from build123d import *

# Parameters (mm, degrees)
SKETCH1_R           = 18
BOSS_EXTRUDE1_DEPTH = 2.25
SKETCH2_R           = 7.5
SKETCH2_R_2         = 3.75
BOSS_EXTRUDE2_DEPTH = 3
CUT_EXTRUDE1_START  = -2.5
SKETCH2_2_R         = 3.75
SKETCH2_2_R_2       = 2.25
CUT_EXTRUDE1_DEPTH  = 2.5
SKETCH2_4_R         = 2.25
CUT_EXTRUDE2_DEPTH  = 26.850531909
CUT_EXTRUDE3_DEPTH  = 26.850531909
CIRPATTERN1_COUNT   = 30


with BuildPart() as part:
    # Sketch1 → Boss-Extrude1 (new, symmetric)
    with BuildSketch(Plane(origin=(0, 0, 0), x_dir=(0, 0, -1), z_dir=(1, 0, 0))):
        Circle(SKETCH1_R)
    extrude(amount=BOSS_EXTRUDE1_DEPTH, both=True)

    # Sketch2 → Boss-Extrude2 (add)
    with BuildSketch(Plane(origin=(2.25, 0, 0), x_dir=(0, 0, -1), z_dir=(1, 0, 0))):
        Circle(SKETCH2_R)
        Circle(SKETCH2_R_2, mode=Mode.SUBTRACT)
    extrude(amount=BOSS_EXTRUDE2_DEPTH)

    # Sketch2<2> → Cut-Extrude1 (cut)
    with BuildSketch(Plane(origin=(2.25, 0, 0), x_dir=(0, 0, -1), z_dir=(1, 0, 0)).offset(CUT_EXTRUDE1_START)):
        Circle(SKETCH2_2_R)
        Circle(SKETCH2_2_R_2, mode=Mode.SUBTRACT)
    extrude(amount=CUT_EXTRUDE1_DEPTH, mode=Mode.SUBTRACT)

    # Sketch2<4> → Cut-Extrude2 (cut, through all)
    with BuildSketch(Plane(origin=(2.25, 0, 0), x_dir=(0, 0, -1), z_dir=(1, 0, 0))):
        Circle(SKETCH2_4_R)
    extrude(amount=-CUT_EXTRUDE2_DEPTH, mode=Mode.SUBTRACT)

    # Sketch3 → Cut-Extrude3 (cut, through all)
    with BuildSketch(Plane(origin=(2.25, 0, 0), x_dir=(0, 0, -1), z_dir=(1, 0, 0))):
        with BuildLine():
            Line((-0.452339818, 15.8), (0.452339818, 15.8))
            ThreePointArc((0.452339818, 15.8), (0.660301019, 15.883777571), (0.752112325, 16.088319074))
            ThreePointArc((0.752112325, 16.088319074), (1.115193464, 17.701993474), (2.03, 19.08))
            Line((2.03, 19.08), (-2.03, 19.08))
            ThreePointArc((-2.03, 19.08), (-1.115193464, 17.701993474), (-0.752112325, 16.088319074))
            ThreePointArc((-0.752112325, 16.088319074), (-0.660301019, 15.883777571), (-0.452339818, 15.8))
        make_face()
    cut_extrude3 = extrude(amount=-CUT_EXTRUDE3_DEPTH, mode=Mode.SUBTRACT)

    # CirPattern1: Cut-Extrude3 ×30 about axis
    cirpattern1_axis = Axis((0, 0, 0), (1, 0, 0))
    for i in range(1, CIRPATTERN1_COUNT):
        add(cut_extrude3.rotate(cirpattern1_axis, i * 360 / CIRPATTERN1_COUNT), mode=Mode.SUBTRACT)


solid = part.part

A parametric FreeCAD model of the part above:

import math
import FreeCAD as App
import Part
import Sketcher
from FreeCAD import Vector

doc = App.newDocument("Part")
body = doc.addObject("PartDesign::Body", "Body")

sketch1 = body.newObject("Sketcher::SketchObject", "Sketch")
sketch1.AttachmentSupport = (doc.getObject("YZ_Plane"), [""])
sketch1.MapMode = "FlatFace"
sketch1.addGeometry(Part.Circle(Vector(0, 0, 0), Vector(0, 0, 1), 18), False)
sketch1.addConstraint([
    Sketcher.Constraint("Coincident", 0, 3, -1, 1),
    Sketcher.Constraint("Diameter", 0, 36.0),
])
pad1 = body.newObject("PartDesign::Pad", "Pad")
pad1.Profile = sketch1
pad1.Length = 4.5
pad1.Midplane = True

sketch2 = body.newObject("Sketcher::SketchObject", "Sketch001")
sketch2.AttachmentSupport = (doc.getObject("YZ_Plane"), [""])
sketch2.MapMode = "FlatFace"
sketch2.AttachmentOffset = App.Placement(Vector(0, 0, 2.25), App.Rotation())
sketch2.addGeometry([
    Part.Circle(Vector(0, 0, 0), Vector(0, 0, 1), 7.5),
    Part.Circle(Vector(0, 0, 0), Vector(0, 0, 1), 3.8),
], False)
sketch2.addConstraint([
    Sketcher.Constraint("Coincident", 0, 3, -1, 1),
    Sketcher.Constraint("Coincident", 1, 3, -1, 1),
    Sketcher.Constraint("Diameter", 0, 15.0),
    Sketcher.Constraint("Diameter", 1, 7.5),
])
pad2 = body.newObject("PartDesign::Pad", "Pad001")
pad2.Profile = sketch2
pad2.Length = 3

sketch3 = body.newObject("Sketcher::SketchObject", "Sketch002")
sketch3.AttachmentSupport = (doc.getObject("YZ_Plane"), [""])
sketch3.MapMode = "FlatFace"
sketch3.AttachmentOffset = App.Placement(Vector(0, 0, -0.25), App.Rotation())
sketch3.addGeometry([
    Part.Circle(Vector(0, 0, 0), Vector(0, 0, 1), 3.8),
    Part.Circle(Vector(0, 0, 0), Vector(0, 0, 1), 2.2),
], False)
sketch3.addConstraint([
    Sketcher.Constraint("Coincident", 0, 3, -1, 1),
    Sketcher.Constraint("Coincident", 1, 3, -1, 1),
    Sketcher.Constraint("Diameter", 0, 7.5),
    Sketcher.Constraint("Diameter", 1, 4.5),
])
pocket1 = body.newObject("PartDesign::Pocket", "Pocket")
pocket1.Profile = sketch3
pocket1.Length = 2.5
pocket1.Reversed = True

sketch4 = body.newObject("Sketcher::SketchObject", "Sketch003")
sketch4.AttachmentSupport = (doc.getObject("YZ_Plane"), [""])
sketch4.MapMode = "FlatFace"
sketch4.AttachmentOffset = App.Placement(Vector(0, 0, 2.25), App.Rotation())
sketch4.addGeometry(Part.Circle(Vector(0, 0, 0), Vector(0, 0, 1), 2.2), False)
sketch4.addConstraint([
    Sketcher.Constraint("Coincident", 0, 3, -1, 1),
    Sketcher.Constraint("Diameter", 0, 4.5),
])
pocket2 = body.newObject("PartDesign::Pocket", "Pocket001")
pocket2.Profile = sketch4
pocket2.Type = "ThroughAll"

sketch5 = body.newObject("Sketcher::SketchObject", "Sketch004")
sketch5.AttachmentSupport = (doc.getObject("YZ_Plane"), [""])
sketch5.MapMode = "FlatFace"
sketch5.AttachmentOffset = App.Placement(Vector(0, 0, 2.25), App.Rotation())
sketch5.addGeometry([
    Part.LineSegment(Vector(15.8, 0.45, 0), Vector(15.8, -0.45, 0)),
    Part.ArcOfCircle(Part.Circle(Vector(16.1, -0.45, 0), Vector(0, 0, 1), 0.3), math.radians(180), math.radians(268)),
    Part.ArcOfCircle(Part.Circle(Vector(15.91, -5.31, 0), Vector(0, 0, 1), 4.56), math.radians(46), math.radians(88)),
    Part.LineSegment(Vector(19.08, -2.03, 0), Vector(19.08, 2.03, 0)),
    Part.ArcOfCircle(Part.Circle(Vector(15.91, 5.31, 0), Vector(0, 0, 1), 4.56), math.radians(-88), math.radians(-46)),
    Part.ArcOfCircle(Part.Circle(Vector(16.1, 0.45, 0), Vector(0, 0, 1), 0.3), math.radians(92), math.radians(180)),
], False)
sketch5.addConstraint([
    Sketcher.Constraint("Tangent", 0, 2, 1, 1),
    Sketcher.Constraint("Tangent", 1, 2, 2, 2),
    Sketcher.Constraint("Coincident", 2, 1, 3, 1),
    Sketcher.Constraint("Coincident", 3, 2, 4, 2),
    Sketcher.Constraint("Tangent", 4, 1, 5, 1),
    Sketcher.Constraint("Tangent", 5, 2, 0, 1),
    Sketcher.Constraint("Vertical", 0),
    Sketcher.Constraint("Vertical", 3),
    Sketcher.Constraint("Equal", 2, 4),
    Sketcher.Constraint("Equal", 1, 5),
    Sketcher.Constraint("Symmetric", 2, 3, 4, 3, -1),
    Sketcher.Constraint("Radius", 1, 0.3),
    Sketcher.Constraint("Radius", 2, 4.56),
    Sketcher.Constraint("DistanceY", 3, 1, 3, 2, 4.06),
    Sketcher.Constraint("DistanceX", -1, 1, 1, 3, 16.1),
    Sketcher.Constraint("DistanceX", -1, 1, 2, 1, 19.08),
    Sketcher.Constraint("DistanceY", 0, 2, 0, 1, 0.90468),
])
pocket3 = body.newObject("PartDesign::Pocket", "Pocket002")
pocket3.Profile = sketch5
pocket3.Type = "ThroughAll"
doc.recompute()

polarpattern = body.newObject("PartDesign::PolarPattern", "PolarPattern")
polarpattern.Originals = [pocket3]
polarpattern.Axis = (doc.getObject("X_Axis"), [""])
polarpattern.Angle = 360
polarpattern.Occurrences = 30
body.Tip = polarpattern

doc.recompute()
